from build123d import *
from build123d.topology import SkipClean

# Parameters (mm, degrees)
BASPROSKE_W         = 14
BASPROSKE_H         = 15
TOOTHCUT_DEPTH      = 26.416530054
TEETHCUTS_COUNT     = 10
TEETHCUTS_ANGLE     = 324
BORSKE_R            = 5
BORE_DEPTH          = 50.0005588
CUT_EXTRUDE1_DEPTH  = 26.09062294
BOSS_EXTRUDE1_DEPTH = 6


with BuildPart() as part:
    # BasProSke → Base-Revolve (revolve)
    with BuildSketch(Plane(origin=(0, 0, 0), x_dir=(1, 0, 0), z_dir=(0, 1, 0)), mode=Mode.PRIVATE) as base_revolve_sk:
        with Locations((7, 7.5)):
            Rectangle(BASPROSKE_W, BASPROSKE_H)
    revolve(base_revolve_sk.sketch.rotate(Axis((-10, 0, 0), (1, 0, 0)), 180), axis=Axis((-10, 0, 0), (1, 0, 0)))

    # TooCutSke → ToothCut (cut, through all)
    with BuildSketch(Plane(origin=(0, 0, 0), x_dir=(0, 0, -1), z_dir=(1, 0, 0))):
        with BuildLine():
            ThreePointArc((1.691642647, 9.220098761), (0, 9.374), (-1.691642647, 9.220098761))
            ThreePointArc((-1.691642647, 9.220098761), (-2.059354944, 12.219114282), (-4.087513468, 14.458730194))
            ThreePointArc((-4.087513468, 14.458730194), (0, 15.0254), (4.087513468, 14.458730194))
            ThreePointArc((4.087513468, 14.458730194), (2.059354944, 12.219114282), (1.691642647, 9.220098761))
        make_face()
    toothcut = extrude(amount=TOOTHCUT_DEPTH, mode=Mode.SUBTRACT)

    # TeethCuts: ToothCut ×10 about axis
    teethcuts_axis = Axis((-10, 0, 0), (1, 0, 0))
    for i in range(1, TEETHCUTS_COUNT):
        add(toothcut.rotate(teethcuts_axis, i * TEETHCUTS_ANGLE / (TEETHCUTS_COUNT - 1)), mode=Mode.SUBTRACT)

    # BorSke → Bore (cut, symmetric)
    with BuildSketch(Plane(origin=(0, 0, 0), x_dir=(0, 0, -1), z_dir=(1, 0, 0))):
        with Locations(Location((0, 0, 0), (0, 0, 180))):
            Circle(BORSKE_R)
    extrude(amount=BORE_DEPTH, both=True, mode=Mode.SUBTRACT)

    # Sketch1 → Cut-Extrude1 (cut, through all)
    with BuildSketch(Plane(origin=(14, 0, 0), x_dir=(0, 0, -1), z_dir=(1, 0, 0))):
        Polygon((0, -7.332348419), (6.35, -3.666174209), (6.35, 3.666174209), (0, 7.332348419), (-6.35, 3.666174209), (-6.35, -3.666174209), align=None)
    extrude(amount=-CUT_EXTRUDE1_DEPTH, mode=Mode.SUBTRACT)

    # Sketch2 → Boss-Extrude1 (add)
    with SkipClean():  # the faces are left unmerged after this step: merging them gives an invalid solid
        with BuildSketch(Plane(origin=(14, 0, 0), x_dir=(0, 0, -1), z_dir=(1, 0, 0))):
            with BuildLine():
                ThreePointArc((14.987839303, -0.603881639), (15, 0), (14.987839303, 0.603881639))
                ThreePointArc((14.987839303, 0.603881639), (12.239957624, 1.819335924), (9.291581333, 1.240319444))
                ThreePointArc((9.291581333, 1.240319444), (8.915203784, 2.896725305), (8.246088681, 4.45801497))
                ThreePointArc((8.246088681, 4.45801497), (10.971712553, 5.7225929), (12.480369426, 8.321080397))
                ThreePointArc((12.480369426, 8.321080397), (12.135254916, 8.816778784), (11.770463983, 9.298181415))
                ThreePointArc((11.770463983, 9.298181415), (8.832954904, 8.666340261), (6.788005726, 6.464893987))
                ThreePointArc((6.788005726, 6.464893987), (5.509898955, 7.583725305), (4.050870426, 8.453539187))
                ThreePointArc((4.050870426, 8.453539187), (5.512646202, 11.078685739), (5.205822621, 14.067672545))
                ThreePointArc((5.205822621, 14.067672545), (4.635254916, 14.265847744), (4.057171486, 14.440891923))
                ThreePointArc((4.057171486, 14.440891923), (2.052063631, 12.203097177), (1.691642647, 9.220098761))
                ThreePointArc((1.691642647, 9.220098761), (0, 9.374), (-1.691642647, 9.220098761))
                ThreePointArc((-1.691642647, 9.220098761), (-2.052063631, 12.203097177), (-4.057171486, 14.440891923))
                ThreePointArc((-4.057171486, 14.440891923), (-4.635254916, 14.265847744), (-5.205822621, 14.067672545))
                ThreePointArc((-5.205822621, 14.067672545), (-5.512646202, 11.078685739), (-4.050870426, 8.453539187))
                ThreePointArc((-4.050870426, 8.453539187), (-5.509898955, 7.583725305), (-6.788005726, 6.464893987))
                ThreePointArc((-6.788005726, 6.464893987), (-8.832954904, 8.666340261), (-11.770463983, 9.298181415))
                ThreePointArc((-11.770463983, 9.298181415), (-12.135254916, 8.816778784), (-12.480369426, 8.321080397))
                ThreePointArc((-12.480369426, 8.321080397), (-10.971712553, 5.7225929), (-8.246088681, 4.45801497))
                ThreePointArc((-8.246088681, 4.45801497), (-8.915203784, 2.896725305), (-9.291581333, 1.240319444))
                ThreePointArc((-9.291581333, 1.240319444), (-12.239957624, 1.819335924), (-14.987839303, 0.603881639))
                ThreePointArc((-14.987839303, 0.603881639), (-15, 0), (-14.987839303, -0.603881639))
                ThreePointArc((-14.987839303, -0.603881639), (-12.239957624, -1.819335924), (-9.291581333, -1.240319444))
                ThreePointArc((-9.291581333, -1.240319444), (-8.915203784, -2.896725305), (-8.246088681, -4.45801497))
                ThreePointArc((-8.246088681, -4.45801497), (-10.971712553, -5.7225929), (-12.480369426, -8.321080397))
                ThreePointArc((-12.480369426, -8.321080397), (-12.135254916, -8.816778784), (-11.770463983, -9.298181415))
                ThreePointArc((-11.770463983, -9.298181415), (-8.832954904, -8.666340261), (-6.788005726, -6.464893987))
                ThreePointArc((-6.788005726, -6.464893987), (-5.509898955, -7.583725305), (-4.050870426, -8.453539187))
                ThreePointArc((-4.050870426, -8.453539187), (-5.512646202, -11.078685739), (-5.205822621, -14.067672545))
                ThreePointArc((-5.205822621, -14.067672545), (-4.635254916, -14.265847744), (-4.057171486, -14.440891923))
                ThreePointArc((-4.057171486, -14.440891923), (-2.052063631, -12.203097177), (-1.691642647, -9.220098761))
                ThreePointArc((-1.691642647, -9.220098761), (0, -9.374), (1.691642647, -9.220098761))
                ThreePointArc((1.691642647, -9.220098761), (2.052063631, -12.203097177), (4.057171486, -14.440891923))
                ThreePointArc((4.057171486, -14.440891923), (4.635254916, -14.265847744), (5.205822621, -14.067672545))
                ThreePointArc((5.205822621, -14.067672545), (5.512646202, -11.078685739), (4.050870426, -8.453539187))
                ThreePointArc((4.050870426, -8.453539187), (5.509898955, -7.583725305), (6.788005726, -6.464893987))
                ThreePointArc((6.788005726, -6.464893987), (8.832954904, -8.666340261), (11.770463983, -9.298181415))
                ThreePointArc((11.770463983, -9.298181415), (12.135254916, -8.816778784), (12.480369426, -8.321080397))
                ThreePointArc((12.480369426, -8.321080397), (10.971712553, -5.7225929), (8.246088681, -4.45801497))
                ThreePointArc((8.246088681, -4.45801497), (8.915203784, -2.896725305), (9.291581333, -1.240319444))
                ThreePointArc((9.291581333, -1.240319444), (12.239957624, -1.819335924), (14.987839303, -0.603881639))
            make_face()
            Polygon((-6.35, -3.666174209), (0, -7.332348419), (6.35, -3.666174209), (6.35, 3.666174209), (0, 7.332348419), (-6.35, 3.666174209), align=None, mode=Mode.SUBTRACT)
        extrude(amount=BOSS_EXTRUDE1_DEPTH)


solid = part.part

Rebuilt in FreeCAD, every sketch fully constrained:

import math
import FreeCAD as App
import Part
import Sketcher

V = App.Vector
Q = App.Units.Quantity


def add_polygon(sketch, points):
    """Adds a closed chain of lines whose ends are joined by coincident constraints."""
    first, n = sketch.GeometryCount, len(points)
    for a, b in zip(points, points[1:] + points[:1]):
        sketch.addGeometry(Part.LineSegment(App.Vector(*a, 0), App.Vector(*b, 0)), False)
    for i in range(n):
        sketch.addConstraint(Sketcher.Constraint("Coincident", first + i, 2, first + (i + 1) % n, 1))

doc = App.newDocument("Part")
body = doc.addObject("PartDesign::Body", "Body")

sketch1 = body.newObject("Sketcher::SketchObject", "Sketch")
sketch1.AttachmentSupport = (doc.getObject("XZ_Plane"), [""])
sketch1.MapMode = "FlatFace"
add_polygon(sketch1, [(0, -15), (0, 0), (14, 0), (14, -15)])
sketch1.addConstraint([
    Sketcher.Constraint("Vertical", 0),
    Sketcher.Constraint("Horizontal", 1),
    Sketcher.Constraint("Vertical", 2),
    Sketcher.Constraint("Horizontal", 3),
    Sketcher.Constraint("Coincident", 0, 2, -1, 1),
    Sketcher.Constraint("DistanceX", 1, 1, 1, 2, 14.0),
    Sketcher.Constraint("DistanceY", 0, 1, 0, 2, 15.0),
])
revolution = body.newObject("PartDesign::Revolution", "Revolution")
revolution.Profile = sketch1
revolution.ReferenceAxis = (sketch1, ["H_Axis"])
revolution.Angle = 360

sketch2 = body.newObject("Sketcher::SketchObject", "Sketch001")
sketch2.AttachmentSupport = (doc.getObject("YZ_Plane"), [""])
sketch2.MapMode = "FlatFace"
sketch2.addGeometry([
    Part.ArcOfCircle(Part.Circle(V(0, 0, 0), V(0, 0, 1), 9.4), math.radians(-10), math.radians(10)),
    Part.ArcOfCircle(Part.Circle(V(10.1, -6.6, 0), V(0, 0, 1), 5), math.radians(30), math.radians(101)),
    Part.ArcOfCircle(Part.Circle(V(0, 0, 0), V(0, 0, 1), 15), math.radians(-16), math.radians(16)),
    Part.ArcOfCircle(Part.Circle(V(10.1, 6.6, 0), V(0, 0, 1), 5), math.radians(-101), math.radians(-30)),
], False)
sketch2.addConstraint([
    Sketcher.Constraint("Coincident", 0, 1, 1, 2),
    Sketcher.Constraint("Coincident", 1, 1, 2, 1),
    Sketcher.Constraint("Coincident", 2, 2, 3, 2),
    Sketcher.Constraint("Coincident", 3, 1, 0, 2),
    Sketcher.Constraint("Coincident", 0, 3, -1, 1),
    Sketcher.Constraint("Coincident", 2, 3, -1, 1),
    Sketcher.Constraint("Equal", 1, 3),
    Sketcher.Constraint("Symmetric", 1, 3, 3, 3, -1),
    Sketcher.Constraint("Radius", 1, 5.0),
    Sketcher.Constraint("Radius", 0, 9.374),
    Sketcher.Constraint("Radius", 2, 15.0254),
    Sketcher.Constraint("DistanceX", -1, 1, 0, 1, 9.220099),
    Sketcher.Constraint("DistanceX", -1, 1, 1, 3, 10.139549),
])
pocket1 = body.newObject("PartDesign::Pocket", "Pocket")
pocket1.Profile = sketch2
pocket1.Type = "ThroughAll"
pocket1.Reversed = True
doc.recompute()

polarpattern = body.newObject("PartDesign::PolarPattern", "PolarPattern")
polarpattern.Originals = [pocket1]
polarpattern.Axis = (doc.getObject("X_Axis"), [""])
polarpattern.Angle = 360
polarpattern.Occurrences = 10
body.Tip = polarpattern

sketch3 = body.newObject("Sketcher::SketchObject", "Sketch002")
sketch3.AttachmentSupport = (doc.getObject("YZ_Plane"), [""])
sketch3.MapMode = "FlatFace"
sketch3.addGeometry(Part.Circle(V(0, 0, 0), V(0, 0, 1), 5), False)
sketch3.addConstraint([
    Sketcher.Constraint("Coincident", 0, 3, -1, 1),
    Sketcher.Constraint("Diameter", 0, 10.0),
])
pocket2 = body.newObject("PartDesign::Pocket", "Pocket001")
pocket2.Profile = sketch3
pocket2.Length = 100.001118
pocket2.Midplane = True

sketch4 = body.newObject("Sketcher::SketchObject", "Sketch003")
sketch4.AttachmentSupport = (doc.getObject("YZ_Plane"), [""])
sketch4.MapMode = "FlatFace"
sketch4.AttachmentOffset = App.Placement(V(0, 0, 14), App.Rotation())
add_polygon(sketch4, [(-7, 0), (-4, -6), (4, -6), (7, 0), (4, 6), (-4, 6)])
sketch4.addConstraint([
    Sketcher.Constraint("Horizontal", 1),
    Sketcher.Constraint("Horizontal", 4),
    Sketcher.Constraint("Symmetric", 0, 2, 3, 2, -1, 1),
    Sketcher.Constraint("Symmetric", 2, 2, 5, 2, -1, 1),
    Sketcher.Constraint("PointOnObject", 2, 2, -1),
    Sketcher.Constraint("Parallel", 2, 5),
    Sketcher.Constraint("Vertical", 1, 2, 3, 2),
    Sketcher.Constraint("Angle", 0, Q("-60 deg")),
    Sketcher.Constraint("DistanceY", 1, 2, 3, 2, 12.7),
    Sketcher.Constraint("DistanceX", 1, 1, 1, 2, 7.332348),
])
pocket3 = body.newObject("PartDesign::Pocket", "Pocket002")
pocket3.Profile = sketch4
pocket3.Type = "ThroughAll"

sketch5 = body.newObject("Sketcher::SketchObject", "Sketch004")
sketch5.AttachmentSupport = (doc.getObject("YZ_Plane"), [""])
sketch5.MapMode = "FlatFace"
sketch5.AttachmentOffset = App.Placement(V(0, 0, 14), App.Rotation())
sketch5.addGeometry(Part.ArcOfCircle(Part.Circle(V(0, 0, 0), V(0, 0, 1), 15), math.radians(-92.31), math.radians(-87.69)), False)
sketch5.addGeometry(Part.ArcOfCircle(Part.Circle(V(-3.1, -11.7, 0), V(0, 0, 1), 5), math.radians(-41), math.radians(29)), False)
sketch5.addGeometry(Part.ArcOfCircle(Part.Circle(V(0, 0, 0), V(0, 0, 1), 9.4), math.radians(-82), math.radians(-62)), False)
sketch5.addGeometry(Part.ArcOfCircle(Part.Circle(V(9.4, -7.6, 0), V(0, 0, 1), 5), math.radians(-173), math.radians(-103)), False)
sketch5.addGeometry(Part.ArcOfCircle(Part.Circle(V(0, 0, 0), V(0, 0, 1), 15), math.radians(-56.31), math.radians(-51.69)), False)
sketch5.addGeometry(Part.ArcOfCircle(Part.Circle(V(4.3, -11.3, 0), V(0, 0, 1), 5), math.radians(-5), math.radians(65)), False)
sketch5.addGeometry(Part.ArcOfCircle(Part.Circle(V(0, 0, 0), V(0, 0, 1), 9.4), math.radians(-46), math.radians(-26)), False)
sketch5.addGeometry(Part.ArcOfCircle(Part.Circle(V(12.1, -0.6, 0), V(0, 0, 1), 5), math.radians(-137), math.radians(-67)), False)
sketch5.addGeometry(Part.ArcOfCircle(Part.Circle(V(0, 0, 0), V(0, 0, 1), 15), math.radians(-20.31), math.radians(-15.69)), False)
sketch5.addGeometry(Part.ArcOfCircle(Part.Circle(V(10.1, -6.6, 0), V(0, 0, 1), 5), math.radians(31), math.radians(101)), False)
sketch5.addGeometry(Part.ArcOfCircle(Part.Circle(V(0, 0, 0), V(0, 0, 1), 9.4), math.radians(-10), math.radians(10)), False)
sketch5.addGeometry(Part.ArcOfCircle(Part.Circle(V(10.1, 6.6, 0), V(0, 0, 1), 5), math.radians(-101), math.radians(-31)), False)
sketch5.addGeometry(Part.ArcOfCircle(Part.Circle(V(0, 0, 0), V(0, 0, 1), 15), math.radians(15.69), math.radians(20.31)), False)
sketch5.addGeometry(Part.ArcOfCircle(Part.Circle(V(12.1, 0.6, 0), V(0, 0, 1), 5), math.radians(67), math.radians(137)), False)
sketch5.addGeometry(Part.ArcOfCircle(Part.Circle(V(0, 0, 0), V(0, 0, 1), 9.4), math.radians(26), math.radians(46)), False)
sketch5.addGeometry(Part.ArcOfCircle(Part.Circle(V(4.3, 11.3, 0), V(0, 0, 1), 5), math.radians(-65), math.radians(5)), False)
sketch5.addGeometry(Part.ArcOfCircle(Part.Circle(V(0, 0, 0), V(0, 0, 1), 15), math.radians(51.69), math.radians(56.31)), False)
sketch5.addGeometry(Part.ArcOfCircle(Part.Circle(V(9.4, 7.6, 0), V(0, 0, 1), 5), math.radians(103), math.radians(173)), False)
sketch5.addGeometry(Part.ArcOfCircle(Part.Circle(V(0, 0, 0), V(0, 0, 1), 9.4), math.radians(62), math.radians(82)), False)
sketch5.addGeometry(Part.ArcOfCircle(Part.Circle(V(-3.1, 11.7, 0), V(0, 0, 1), 5), math.radians(-29), math.radians(41)), False)
sketch5.addGeometry(Part.ArcOfCircle(Part.Circle(V(0, 0, 0), V(0, 0, 1), 15), math.radians(87.69), math.radians(92.31)), False)
sketch5.addGeometry(Part.ArcOfCircle(Part.Circle(V(3.1, 11.7, 0), V(0, 0, 1), 5), math.radians(139), math.radians(209)), False)
sketch5.addGeometry(Part.ArcOfCircle(Part.Circle(V(0, 0, 0), V(0, 0, 1), 9.4), math.radians(98), math.radians(118)), False)
sketch5.addGeometry(Part.ArcOfCircle(Part.Circle(V(-9.4, 7.6, 0), V(0, 0, 1), 5), math.radians(7), math.radians(77)), False)
sketch5.addGeometry(Part.ArcOfCircle(Part.Circle(V(0, 0, 0), V(0, 0, 1), 15), math.radians(123.69), math.radians(128.31)), False)
sketch5.addGeometry(Part.ArcOfCircle(Part.Circle(V(-4.3, 11.3, 0), V(0, 0, 1), 5), math.radians(175), math.radians(245)), False)
sketch5.addGeometry(Part.ArcOfCircle(Part.Circle(V(0, 0, 0), V(0, 0, 1), 9.4), math.radians(134), math.radians(154)), False)
sketch5.addGeometry(Part.ArcOfCircle(Part.Circle(V(-12.1, 0.6, 0), V(0, 0, 1), 5), math.radians(43), math.radians(113)), False)
sketch5.addGeometry(Part.ArcOfCircle(Part.Circle(V(0, 0, 0), V(0, 0, 1), 15), math.radians(159.69), math.radians(164.31)), False)
sketch5.addGeometry(Part.ArcOfCircle(Part.Circle(V(-10.1, 6.6, 0), V(0, 0, 1), 5), math.radians(-149), math.radians(-79)), False)
sketch5.addGeometry(Part.ArcOfCircle(Part.Circle(V(0, 0, 0), V(0, 0, 1), 9.4), math.radians(170), math.radians(190)), False)
sketch5.addGeometry(Part.ArcOfCircle(Part.Circle(V(-10.1, -6.6, 0), V(0, 0, 1), 5), math.radians(79), math.radians(149)), False)
sketch5.addGeometry(Part.ArcOfCircle(Part.Circle(V(0, 0, 0), V(0, 0, 1), 15), math.radians(-164.31), math.radians(-159.69)), False)
sketch5.addGeometry(Part.ArcOfCircle(Part.Circle(V(-12.1, -0.6, 0), V(0, 0, 1), 5), math.radians(-113), math.radians(-43)), False)
sketch5.addGeometry(Part.ArcOfCircle(Part.Circle(V(0, 0, 0), V(0, 0, 1), 9.4), math.radians(-154), math.radians(-134)), False)
sketch5.addGeometry(Part.ArcOfCircle(Part.Circle(V(-4.3, -11.3, 0), V(0, 0, 1), 5), math.radians(115), math.radians(185)), False)
sketch5.addGeometry(Part.ArcOfCircle(Part.Circle(V(0, 0, 0), V(0, 0, 1), 15), math.radians(-128.31), math.radians(-123.69)), False)
sketch5.addGeometry(Part.ArcOfCircle(Part.Circle(V(-9.4, -7.6, 0), V(0, 0, 1), 5), math.radians(-77), math.radians(-7)), False)
sketch5.addGeometry(Part.ArcOfCircle(Part.Circle(V(0, 0, 0), V(0, 0, 1), 9.4), math.radians(-118), math.radians(-98)), False)
sketch5.addGeometry(Part.ArcOfCircle(Part.Circle(V(3.1, -11.7, 0), V(0, 0, 1), 5), math.radians(151), math.radians(221)), False)
add_polygon(sketch5, [(-7.3, 0), (-3.7, 6.3), (3.7, 6.3), (7.3, 0), (3.7, -6.3), (-3.7, -6.3)])
sketch5.addConstraint([
    Sketcher.Constraint("Coincident", 0, 2, 1, 1),
    Sketcher.Constraint("Coincident", 1, 2, 2, 1),
    Sketcher.Constraint("Coincident", 2, 2, 3, 1),
    Sketcher.Constraint("Coincident", 3, 2, 4, 1),
    Sketcher.Constraint("Coincident", 4, 2, 5, 1),
    Sketcher.Constraint("Coincident", 5, 2, 6, 1),
    Sketcher.Constraint("Coincident", 6, 2, 7, 1),
    Sketcher.Constraint("Coincident", 7, 2, 8, 1),
    Sketcher.Constraint("Coincident", 8, 2, 9, 1),
    Sketcher.Constraint("Coincident", 9, 2, 10, 1),
    Sketcher.Constraint("Coincident", 10, 2, 11, 1),
    Sketcher.Constraint("Coincident", 11, 2, 12, 1),
    Sketcher.Constraint("Coincident", 12, 2, 13, 1),
    Sketcher.Constraint("Coincident", 13, 2, 14, 1),
    Sketcher.Constraint("Coincident", 14, 2, 15, 1),
    Sketcher.Constraint("Coincident", 15, 2, 16, 1),
    Sketcher.Constraint("Coincident", 16, 2, 17, 1),
    Sketcher.Constraint("Coincident", 17, 2, 18, 1),
    Sketcher.Constraint("Coincident", 18, 2, 19, 1),
    Sketcher.Constraint("Coincident", 19, 2, 20, 1),
    Sketcher.Constraint("Coincident", 20, 2, 21, 1),
    Sketcher.Constraint("Coincident", 21, 2, 22, 1),
    Sketcher.Constraint("Coincident", 22, 2, 23, 1),
    Sketcher.Constraint("Coincident", 23, 2, 24, 1),
    Sketcher.Constraint("Coincident", 24, 2, 25, 1),
    Sketcher.Constraint("Coincident", 25, 2, 26, 1),
    Sketcher.Constraint("Coincident", 26, 2, 27, 1),
    Sketcher.Constraint("Coincident", 27, 2, 28, 1),
    Sketcher.Constraint("Coincident", 28, 2, 29, 1),
    Sketcher.Constraint("Coincident", 29, 2, 30, 1),
    Sketcher.Constraint("Coincident", 30, 2, 31, 1),
    Sketcher.Constraint("Coincident", 31, 2, 32, 1),
    Sketcher.Constraint("Coincident", 32, 2, 33, 1),
    Sketcher.Constraint("Coincident", 33, 2, 34, 1),
    Sketcher.Constraint("Coincident", 34, 2, 35, 1),
    Sketcher.Constraint("Coincident", 35, 2, 36, 1),
    Sketcher.Constraint("Coincident", 36, 2, 37, 1),
    Sketcher.Constraint("Coincident", 37, 2, 38, 1),
    Sketcher.Constraint("Coincident", 38, 2, 39, 1),
    Sketcher.Constraint("Coincident", 39, 2, 0, 1),
    Sketcher.Constraint("Horizontal", 41),
    Sketcher.Constraint("Horizontal", 44),
    Sketcher.Constraint("Coincident", 0, 3, -1, 1),
    Sketcher.Constraint("Coincident", 2, 3, -1, 1),
    Sketcher.Constraint("Coincident", 4, 3, -1, 1),
    Sketcher.Constraint("Coincident", 6, 3, -1, 1),
    Sketcher.Constraint("Coincident", 8, 3, -1, 1),
    Sketcher.Constraint("Coincident", 10, 3, -1, 1),
    Sketcher.Constraint("Coincident", 12, 3, -1, 1),
    Sketcher.Constraint("Coincident", 14, 3, -1, 1),
    Sketcher.Constraint("Coincident", 16, 3, -1, 1),
    Sketcher.Constraint("Coincident", 18, 3, -1, 1),
    Sketcher.Constraint("Coincident", 20, 3, -1, 1),
    Sketcher.Constraint("Coincident", 22, 3, -1, 1),
    Sketcher.Constraint("Coincident", 24, 3, -1, 1),
    Sketcher.Constraint("Coincident", 26, 3, -1, 1),
    Sketcher.Constraint("Coincident", 28, 3, -1, 1),
    Sketcher.Constraint("Coincident", 30, 3, -1, 1),
    Sketcher.Constraint("Coincident", 32, 3, -1, 1),
    Sketcher.Constraint("Coincident", 34, 3, -1, 1),
    Sketcher.Constraint("Coincident", 36, 3, -1, 1),
    Sketcher.Constraint("Coincident", 38, 3, -1, 1),
    Sketcher.Constraint("Equal", 1, 3),
    Sketcher.Constraint("Equal", 0, 4),
    Sketcher.Constraint("Equal", 3, 5),
    Sketcher.Constraint("Equal", 2, 6),
    Sketcher.Constraint("Equal", 5, 7),
    Sketcher.Constraint("Equal", 4, 8),
    Sketcher.Constraint("Equal", 7, 9),
    Sketcher.Constraint("Equal", 6, 10),
    Sketcher.Constraint("Equal", 9, 11),
    Sketcher.Constraint("Equal", 8, 12),
    Sketcher.Constraint("Equal", 11, 13),
    Sketcher.Constraint("Equal", 10, 14),
    Sketcher.Constraint("Equal", 13, 15),
    Sketcher.Constraint("Equal", 12, 16),
    Sketcher.Constraint("Equal", 15, 17),
    Sketcher.Constraint("Equal", 14, 18),
    Sketcher.Constraint("Equal", 17, 19),
    Sketcher.Constraint("Equal", 16, 20),
    Sketcher.Constraint("Equal", 19, 21),
    Sketcher.Constraint("Equal", 18, 22),
    Sketcher.Constraint("Equal", 21, 23),
    Sketcher.Constraint("Equal", 20, 24),
    Sketcher.Constraint("Equal", 23, 25),
    Sketcher.Constraint("Equal", 22, 26),
    Sketcher.Constraint("Equal", 25, 27),
    Sketcher.Constraint("Equal", 24, 28),
    Sketcher.Constraint("Equal", 27, 29),
    Sketcher.Constraint("Equal", 26, 30),
    Sketcher.Constraint("Equal", 29, 31),
    Sketcher.Constraint("Equal", 28, 32),
    Sketcher.Constraint("Equal", 31, 33),
    Sketcher.Constraint("Equal", 30, 34),
    Sketcher.Constraint("Equal", 33, 35),
    Sketcher.Constraint("Equal", 32, 36),
    Sketcher.Constraint("Equal", 35, 37),
    Sketcher.Constraint("Equal", 34, 38),
    Sketcher.Constraint("Equal", 37, 39),
    Sketcher.Constraint("Symmetric", 1, 3, 21, 3, -1, 1),
    Sketcher.Constraint("Symmetric", 3, 3, 23, 3, -1, 1),
    Sketcher.Constraint("Symmetric", 5, 3, 25, 3, -1, 1),
    Sketcher.Constraint("Symmetric", 7, 3, 27, 3, -1, 1),
    Sketcher.Constraint("Symmetric", 9, 3, 29, 3, -1, 1),
    Sketcher.Constraint("Symmetric", 11, 3, 31, 3, -1, 1),
    Sketcher.Constraint("Symmetric", 13, 3, 33, 3, -1, 1),
    Sketcher.Constraint("Symmetric", 15, 3, 35, 3, -1, 1),
    Sketcher.Constraint("Symmetric", 17, 3, 37, 3, -1, 1),
    Sketcher.Constraint("Symmetric", 19, 3, 39, 3, -1, 1),
    Sketcher.Constraint("Symmetric", 40, 2, 43, 2, -1, 1),
    Sketcher.Constraint("Symmetric", 42, 2, 45, 2, -1, 1),
    Sketcher.Constraint("Symmetric", 19, 3, 21, 3, -2),
    Sketcher.Constraint("Symmetric", 17, 3, 23, 3, -2),
    Sketcher.Constraint("Symmetric", 15, 3, 25, 3, -2),
    Sketcher.Constraint("Symmetric", 13, 3, 27, 3, -2),
    Sketcher.Constraint("Symmetric", 11, 3, 29, 3, -2),
    Sketcher.Constraint("PointOnObject", 42, 2, -1),
    Sketcher.Constraint("Parallel", 42, 45),
    Sketcher.Constraint("Vertical", 41, 2, 43, 2),
    Sketcher.Constraint("Radius", 0, 15.0),
    Sketcher.Constraint("Radius", 1, 5.0),
    Sketcher.Constraint("Angle", 40, Q("60 deg")),
    Sketcher.Constraint("Radius", 2, 9.374),
    Sketcher.Constraint("DistanceY", -1, 1, 40, 2, 6.35),
    Sketcher.Constraint("DistanceX", 41, 1, 41, 2, 7.332348),
    Sketcher.Constraint("DistanceY", 3, 3, -1, 1, 7.601801),
    Sketcher.Constraint("DistanceX", -1, 1, 7, 3, 12.086198),
    Sketcher.Constraint("DistanceX", -1, 1, 9, 2, 9.220099),
    Sketcher.Constraint("DistanceX", -1, 1, 3, 3, 9.416331),
    Sketcher.Constraint("DistanceY", 5, 3, -1, 1, 11.304548),
    Sketcher.Constraint("DistanceX", -1, 1, 9, 3, 10.139549),
    Sketcher.Constraint("DistanceX", -1, 1, 0, 2, 0.603882),
    Sketcher.Constraint("DistanceX", -1, 1, 1, 2, 1.240319),
    Sketcher.Constraint("DistanceX", -1, 1, 4, 2, 9.298181),
    Sketcher.Constraint("DistanceX", -1, 1, 6, 2, 8.453539),
])
pad1 = body.newObject("PartDesign::Pad", "Pad")
pad1.Profile = sketch5
pad1.Length = 6

doc.recompute()
